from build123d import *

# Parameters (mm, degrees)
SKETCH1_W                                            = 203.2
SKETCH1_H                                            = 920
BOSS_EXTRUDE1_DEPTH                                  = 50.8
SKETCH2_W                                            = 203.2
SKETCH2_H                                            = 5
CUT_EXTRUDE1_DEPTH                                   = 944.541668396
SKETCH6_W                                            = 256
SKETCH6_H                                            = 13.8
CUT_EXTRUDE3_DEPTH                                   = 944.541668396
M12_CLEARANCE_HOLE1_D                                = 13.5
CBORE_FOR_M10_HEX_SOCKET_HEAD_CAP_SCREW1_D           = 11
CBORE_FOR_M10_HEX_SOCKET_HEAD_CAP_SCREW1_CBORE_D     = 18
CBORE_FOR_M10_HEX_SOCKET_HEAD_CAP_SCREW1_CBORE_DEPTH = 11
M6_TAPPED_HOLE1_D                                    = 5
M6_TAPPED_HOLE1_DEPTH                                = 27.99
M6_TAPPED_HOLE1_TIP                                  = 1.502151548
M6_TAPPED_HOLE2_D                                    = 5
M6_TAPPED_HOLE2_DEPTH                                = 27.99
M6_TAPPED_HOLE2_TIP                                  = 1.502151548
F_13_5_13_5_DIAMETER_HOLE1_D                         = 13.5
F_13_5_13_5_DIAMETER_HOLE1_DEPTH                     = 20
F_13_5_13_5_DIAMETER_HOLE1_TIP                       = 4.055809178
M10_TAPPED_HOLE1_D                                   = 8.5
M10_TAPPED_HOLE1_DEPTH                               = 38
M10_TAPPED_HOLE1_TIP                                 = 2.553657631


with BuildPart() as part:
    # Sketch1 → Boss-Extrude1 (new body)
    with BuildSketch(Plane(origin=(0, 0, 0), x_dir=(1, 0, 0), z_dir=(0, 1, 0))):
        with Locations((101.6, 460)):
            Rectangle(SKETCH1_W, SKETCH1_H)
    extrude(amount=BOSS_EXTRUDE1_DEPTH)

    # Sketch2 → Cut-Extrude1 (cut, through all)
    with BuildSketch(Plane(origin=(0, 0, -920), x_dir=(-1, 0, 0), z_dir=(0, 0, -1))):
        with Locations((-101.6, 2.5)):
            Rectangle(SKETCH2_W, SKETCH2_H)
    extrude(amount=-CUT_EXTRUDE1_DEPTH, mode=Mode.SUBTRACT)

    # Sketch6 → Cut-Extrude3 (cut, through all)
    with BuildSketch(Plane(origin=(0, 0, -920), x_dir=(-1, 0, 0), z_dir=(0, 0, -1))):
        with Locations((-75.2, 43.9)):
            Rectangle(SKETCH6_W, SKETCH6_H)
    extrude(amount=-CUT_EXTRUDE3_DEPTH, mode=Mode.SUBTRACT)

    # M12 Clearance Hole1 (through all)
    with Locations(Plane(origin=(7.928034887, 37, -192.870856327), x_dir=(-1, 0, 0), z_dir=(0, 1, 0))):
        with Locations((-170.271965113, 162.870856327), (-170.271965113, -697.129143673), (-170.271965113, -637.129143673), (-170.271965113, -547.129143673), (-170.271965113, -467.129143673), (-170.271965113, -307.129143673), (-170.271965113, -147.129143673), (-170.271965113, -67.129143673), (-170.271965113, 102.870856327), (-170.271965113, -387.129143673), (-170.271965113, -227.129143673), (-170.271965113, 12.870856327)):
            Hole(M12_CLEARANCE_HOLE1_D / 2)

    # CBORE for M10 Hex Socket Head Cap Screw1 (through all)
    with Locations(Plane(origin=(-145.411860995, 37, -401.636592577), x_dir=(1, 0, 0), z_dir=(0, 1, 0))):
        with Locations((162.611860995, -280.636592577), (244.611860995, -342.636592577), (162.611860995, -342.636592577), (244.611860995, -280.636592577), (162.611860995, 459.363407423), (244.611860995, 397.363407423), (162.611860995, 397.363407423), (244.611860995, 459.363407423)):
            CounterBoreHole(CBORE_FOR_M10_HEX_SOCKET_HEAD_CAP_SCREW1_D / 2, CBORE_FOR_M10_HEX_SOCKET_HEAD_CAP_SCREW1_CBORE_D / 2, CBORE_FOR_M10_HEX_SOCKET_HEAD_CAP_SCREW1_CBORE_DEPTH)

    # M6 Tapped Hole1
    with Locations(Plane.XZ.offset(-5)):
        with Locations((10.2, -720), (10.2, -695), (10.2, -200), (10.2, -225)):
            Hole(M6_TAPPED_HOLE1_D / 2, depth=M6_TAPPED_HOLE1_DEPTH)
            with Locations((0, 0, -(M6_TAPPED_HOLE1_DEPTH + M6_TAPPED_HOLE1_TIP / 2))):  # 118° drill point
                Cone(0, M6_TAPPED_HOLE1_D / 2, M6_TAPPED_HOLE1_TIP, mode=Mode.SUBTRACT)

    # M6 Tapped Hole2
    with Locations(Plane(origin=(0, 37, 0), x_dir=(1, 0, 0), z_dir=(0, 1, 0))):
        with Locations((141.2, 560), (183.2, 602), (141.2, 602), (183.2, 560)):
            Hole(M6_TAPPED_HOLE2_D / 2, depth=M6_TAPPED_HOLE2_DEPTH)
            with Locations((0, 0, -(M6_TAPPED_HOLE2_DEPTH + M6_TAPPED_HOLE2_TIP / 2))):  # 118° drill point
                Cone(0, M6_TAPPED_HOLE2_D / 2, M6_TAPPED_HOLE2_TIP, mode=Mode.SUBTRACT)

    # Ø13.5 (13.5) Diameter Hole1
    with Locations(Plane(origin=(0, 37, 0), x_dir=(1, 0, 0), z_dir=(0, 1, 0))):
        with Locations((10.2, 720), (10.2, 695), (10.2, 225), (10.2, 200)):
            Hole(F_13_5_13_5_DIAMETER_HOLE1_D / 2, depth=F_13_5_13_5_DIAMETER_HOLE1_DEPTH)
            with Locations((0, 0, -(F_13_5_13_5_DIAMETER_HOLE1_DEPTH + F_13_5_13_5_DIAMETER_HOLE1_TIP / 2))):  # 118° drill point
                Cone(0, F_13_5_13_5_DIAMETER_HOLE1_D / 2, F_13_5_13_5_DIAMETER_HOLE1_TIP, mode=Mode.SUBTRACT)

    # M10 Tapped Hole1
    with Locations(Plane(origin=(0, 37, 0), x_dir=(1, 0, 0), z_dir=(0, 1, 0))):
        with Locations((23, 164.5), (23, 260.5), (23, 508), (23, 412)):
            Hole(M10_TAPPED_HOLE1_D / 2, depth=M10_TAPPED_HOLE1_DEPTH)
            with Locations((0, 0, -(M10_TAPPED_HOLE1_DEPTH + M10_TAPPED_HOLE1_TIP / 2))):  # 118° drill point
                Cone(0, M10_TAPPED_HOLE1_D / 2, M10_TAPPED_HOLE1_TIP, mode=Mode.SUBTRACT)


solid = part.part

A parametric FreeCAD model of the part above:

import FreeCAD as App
import Part
import Sketcher
Q = App.Units.Quantity


def add_polygon(sketch, points):
    """Adds a closed chain of lines whose ends are joined by coincident constraints."""
    first, n = sketch.GeometryCount, len(points)
    for a, b in zip(points, points[1:] + points[:1]):
        sketch.addGeometry(Part.LineSegment(App.Vector(*a, 0), App.Vector(*b, 0)), False)
    for i in range(n):
        sketch.addConstraint(Sketcher.Constraint("Coincident", first + i, 2, first + (i + 1) % n, 1))

doc = App.newDocument("Part")
body = doc.addObject("PartDesign::Body", "Body")

# Sketch on XZ plane
sketch1 = body.newObject("Sketcher::SketchObject", "Sketch")
sketch1.AttachmentSupport = (doc.getObject("XZ_Plane"), [""])
sketch1.MapMode = "FlatFace"
add_polygon(sketch1, [(0, -920), (0, 0), (203, 0), (203, -920)])  # lines 0-3
sketch1.addConstraint([
    Sketcher.Constraint("Vertical", 0),
    Sketcher.Constraint("Horizontal", 1),
    Sketcher.Constraint("Vertical", 2),
    Sketcher.Constraint("Horizontal", 3),
    Sketcher.Constraint("Coincident", 0, 2, -1, 1),
    Sketcher.Constraint("DistanceY", 0, 1, 0, 2, Q("920 mm")),
    Sketcher.Constraint("DistanceX", 1, 1, 1, 2, Q("203.2 mm")),
])
pad1 = body.newObject("PartDesign::Pad", "Pad")
pad1.Profile = sketch1
pad1.Length = 50.8
pad1.Reversed = True

# Sketch on XY plane
sketch2 = body.newObject("Sketcher::SketchObject", "Sketch001")
sketch2.AttachmentSupport = (doc.getObject("XY_Plane"), [""])
sketch2.MapMode = "FlatFace"
sketch2.AttachmentOffset = App.Placement(App.Vector(0, 0, -920), App.Rotation())
add_polygon(sketch2, [(203, 5), (203, 0), (0, 0), (0, 5)])  # lines 0-3
sketch2.addConstraint([
    Sketcher.Constraint("Vertical", 0),
    Sketcher.Constraint("Horizontal", 1),
    Sketcher.Constraint("Vertical", 2),
    Sketcher.Constraint("Horizontal", 3),
    Sketcher.Constraint("Coincident", 1, 2, -1, 1),
    Sketcher.Constraint("DistanceY", 0, 2, 0, 1, Q("5 mm")),
    Sketcher.Constraint("DistanceX", 1, 2, 1, 1, Q("203.2 mm")),
])
pocket1 = body.newObject("PartDesign::Pocket", "Pocket")
pocket1.Profile = sketch2
pocket1.Type = "ThroughAll"
pocket1.Reversed = True

# Sketch on XY plane
sketch3 = body.newObject("Sketcher::SketchObject", "Sketch002")
sketch3.AttachmentSupport = (doc.getObject("XY_Plane"), [""])
sketch3.MapMode = "FlatFace"
sketch3.AttachmentOffset = App.Placement(App.Vector(0, 0, -920), App.Rotation())
add_polygon(sketch3, [(203, 51), (203, 37), (-53, 37), (-53, 51)])  # lines 0-3
sketch3.addConstraint([
    Sketcher.Constraint("Vertical", 0),
    Sketcher.Constraint("Horizontal", 1),
    Sketcher.Constraint("Vertical", 2),
    Sketcher.Constraint("Horizontal", 3),
    Sketcher.Constraint("DistanceX", 1, 2, 1, 1, Q("256 mm")),
    Sketcher.Constraint("DistanceY", 0, 2, 0, 1, Q("13.8 mm")),
    Sketcher.Constraint("DistanceY", -1, 1, 0, 2, Q("37 mm")),
    Sketcher.Constraint("DistanceX", -1, 1, 0, 2, Q("203.2 mm")),
])
pocket2 = body.newObject("PartDesign::Pocket", "Pocket001")
pocket2.Profile = sketch3
pocket2.Type = "ThroughAll"
pocket2.Reversed = True

# Sketch on XZ plane
sketch4 = body.newObject("Sketcher::SketchObject", "Sketch003")
sketch4.AttachmentSupport = (doc.getObject("XZ_Plane"), [""])
sketch4.MapMode = "FlatFace"
sketch4.AttachmentOffset = App.Placement(App.Vector(0, 0, -37), App.Rotation())
sketch4.addGeometry([
    Part.Circle(App.Vector(178, -30, 0), App.Vector(0, 0, 1), 7),  # 0
    Part.Circle(App.Vector(178, -890, 0), App.Vector(0, 0, 1), 7),  # 1
    Part.Circle(App.Vector(178, -830, 0), App.Vector(0, 0, 1), 7),  # 2
    Part.Circle(App.Vector(178, -740, 0), App.Vector(0, 0, 1), 7),  # 3
    Part.Circle(App.Vector(178, -660, 0), App.Vector(0, 0, 1), 7),  # 4
    Part.Circle(App.Vector(178, -500, 0), App.Vector(0, 0, 1), 7),  # 5
    Part.Circle(App.Vector(178, -340, 0), App.Vector(0, 0, 1), 7),  # 6
    Part.Circle(App.Vector(178, -260, 0), App.Vector(0, 0, 1), 7),  # 7
    Part.Circle(App.Vector(178, -90, 0), App.Vector(0, 0, 1), 7),  # 8
    Part.Circle(App.Vector(178, -580, 0), App.Vector(0, 0, 1), 7),  # 9
    Part.Circle(App.Vector(178, -420, 0), App.Vector(0, 0, 1), 7),  # 10
    Part.Circle(App.Vector(178, -180, 0), App.Vector(0, 0, 1), 7),  # 11
], False)
sketch4.addConstraint([
    Sketcher.Constraint("Equal", 0, 1),
    Sketcher.Constraint("Equal", 1, 2),
    Sketcher.Constraint("Equal", 2, 3),
    Sketcher.Constraint("Equal", 3, 4),
    Sketcher.Constraint("Equal", 4, 5),
    Sketcher.Constraint("Equal", 5, 6),
    Sketcher.Constraint("Equal", 6, 7),
    Sketcher.Constraint("Equal", 7, 8),
    Sketcher.Constraint("Equal", 8, 9),
    Sketcher.Constraint("Equal", 9, 10),
    Sketcher.Constraint("Equal", 10, 11),
    Sketcher.Constraint("Vertical", 0, 3, 1, 3),
    Sketcher.Constraint("Vertical", 1, 3, 2, 3),
    Sketcher.Constraint("Vertical", 2, 3, 3, 3),
    Sketcher.Constraint("Vertical", 3, 3, 4, 3),
    Sketcher.Constraint("Vertical", 4, 3, 5, 3),
    Sketcher.Constraint("Vertical", 5, 3, 6, 3),
    Sketcher.Constraint("Vertical", 6, 3, 7, 3),
    Sketcher.Constraint("Vertical", 7, 3, 8, 3),
    Sketcher.Constraint("Vertical", 8, 3, 9, 3),
    Sketcher.Constraint("Vertical", 9, 3, 10, 3),
    Sketcher.Constraint("Vertical", 10, 3, 11, 3),
    Sketcher.Constraint("Diameter", 0, Q("13.5 mm")),
    Sketcher.Constraint("DistanceY", 0, 3, -1, 1, Q("30 mm")),
    Sketcher.Constraint("DistanceY", 1, 3, -1, 1, Q("890 mm")),
    Sketcher.Constraint("DistanceY", 2, 3, -1, 1, Q("830 mm")),
    Sketcher.Constraint("DistanceY", 3, 3, -1, 1, Q("740 mm")),
    Sketcher.Constraint("DistanceY", 4, 3, -1, 1, Q("660 mm")),
    Sketcher.Constraint("DistanceY", 5, 3, -1, 1, Q("500 mm")),
    Sketcher.Constraint("DistanceY", 6, 3, -1, 1, Q("340 mm")),
    Sketcher.Constraint("DistanceY", 7, 3, -1, 1, Q("260 mm")),
    Sketcher.Constraint("DistanceY", 8, 3, -1, 1, Q("90 mm")),
    Sketcher.Constraint("DistanceY", 9, 3, -1, 1, Q("580 mm")),
    Sketcher.Constraint("DistanceY", 10, 3, -1, 1, Q("420 mm")),
    Sketcher.Constraint("DistanceY", 11, 3, -1, 1, Q("180 mm")),
    Sketcher.Constraint("DistanceX", -1, 1, 0, 3, Q("178.2 mm")),
])
doc.recompute()
hole = body.newObject("PartDesign::Hole", "Hole")
hole.Profile = sketch4
hole.ThreadType = "None"
hole.Diameter = 13.5
hole.DepthType = "ThroughAll"
hole.Reversed = True

# Sketch on XZ plane
sketch5 = body.newObject("Sketcher::SketchObject", "Sketch004")
sketch5.AttachmentSupport = (doc.getObject("XZ_Plane"), [""])
sketch5.MapMode = "FlatFace"
sketch5.AttachmentOffset = App.Placement(App.Vector(0, 0, -37), App.Rotation())
sketch5.addGeometry([
    Part.Circle(App.Vector(17, -121, 0), App.Vector(0, 0, 1), 6),  # 0
    Part.Circle(App.Vector(99, -59, 0), App.Vector(0, 0, 1), 6),  # 1
    Part.Circle(App.Vector(17, -59, 0), App.Vector(0, 0, 1), 6),  # 2
    Part.Circle(App.Vector(99, -121, 0), App.Vector(0, 0, 1), 6),  # 3
    Part.Circle(App.Vector(17, -861, 0), App.Vector(0, 0, 1), 6),  # 4
    Part.Circle(App.Vector(99, -799, 0), App.Vector(0, 0, 1), 6),  # 5
    Part.Circle(App.Vector(17, -799, 0), App.Vector(0, 0, 1), 6),  # 6
    Part.Circle(App.Vector(99, -861, 0), App.Vector(0, 0, 1), 6),  # 7
], False)
sketch5.addConstraint([
    Sketcher.Constraint("Equal", 0, 1),
    Sketcher.Constraint("Equal", 1, 2),
    Sketcher.Constraint("Equal", 2, 3),
    Sketcher.Constraint("Equal", 3, 4),
    Sketcher.Constraint("Equal", 4, 5),
    Sketcher.Constraint("Equal", 5, 6),
    Sketcher.Constraint("Equal", 6, 7),
    Sketcher.Constraint("Horizontal", 1, 3, 2, 3),
    Sketcher.Constraint("Horizontal", 0, 3, 3, 3),
    Sketcher.Constraint("Horizontal", 5, 3, 6, 3),
    Sketcher.Constraint("Horizontal", 4, 3, 7, 3),
    Sketcher.Constraint("Vertical", 0, 3, 2, 3),
    Sketcher.Constraint("Vertical", 1, 3, 3, 3),
    Sketcher.Constraint("Vertical", 2, 3, 4, 3),
    Sketcher.Constraint("Vertical", 3, 3, 5, 3),
    Sketcher.Constraint("Vertical", 4, 3, 6, 3),
    Sketcher.Constraint("Vertical", 5, 3, 7, 3),
    Sketcher.Constraint("Diameter", 0, Q("11 mm")),
    Sketcher.Constraint("DistanceY", 0, 3, -1, 1, Q("121 mm")),
    Sketcher.Constraint("DistanceY", 1, 3, -1, 1, Q("59 mm")),
    Sketcher.Constraint("DistanceY", 4, 3, -1, 1, Q("861 mm")),
    Sketcher.Constraint("DistanceY", 5, 3, -1, 1, Q("799 mm")),
    Sketcher.Constraint("DistanceX", 0, 3, 1, 3, Q("82 mm")),
    Sketcher.Constraint("DistanceX", -1, 1, 0, 3, Q("17.2 mm")),
])
doc.recompute()
hole2 = body.newObject("PartDesign::Hole", "Hole001")
hole2.Profile = sketch5
hole2.ThreadType = "None"
hole2.Diameter = 11
hole2.DepthType = "ThroughAll"
hole2.HoleCutType = "Counterbore"
hole2.HoleCutDiameter = 18
hole2.HoleCutDepth = 11
hole2.Reversed = True

# Sketch on XZ plane
sketch6 = body.newObject("Sketcher::SketchObject", "Sketch005")
sketch6.AttachmentSupport = (doc.getObject("XZ_Plane"), [""])
sketch6.MapMode = "FlatFace"
sketch6.AttachmentOffset = App.Placement(App.Vector(0, 0, -5), App.Rotation())
sketch6.addGeometry([
    Part.Circle(App.Vector(10.2, -720, 0), App.Vector(0, 0, 1), 2.5),
    Part.Circle(App.Vector(10.2, -695, 0), App.Vector(0, 0, 1), 2.5),
    Part.Circle(App.Vector(10.2, -200, 0), App.Vector(0, 0, 1), 2.5),
    Part.Circle(App.Vector(10.2, -225, 0), App.Vector(0, 0, 1), 2.5),
], False)
sketch6.addConstraint([
    Sketcher.Constraint("Equal", 0, 1),
    Sketcher.Constraint("Equal", 1, 2),
    Sketcher.Constraint("Equal", 2, 3),
    Sketcher.Constraint("Vertical", 0, 3, 1, 3),
    Sketcher.Constraint("Vertical", 1, 3, 2, 3),
    Sketcher.Constraint("Vertical", 2, 3, 3, 3),
    Sketcher.Constraint("Diameter", 0, Q("5 mm")),
    Sketcher.Constraint("DistanceY", 0, 3, -1, 1, Q("720 mm")),
    Sketcher.Constraint("DistanceY", 1, 3, -1, 1, Q("695 mm")),
    Sketcher.Constraint("DistanceY", 2, 3, -1, 1, Q("200 mm")),
    Sketcher.Constraint("DistanceY", 3, 3, -1, 1, Q("225 mm")),
    Sketcher.Constraint("DistanceX", -1, 1, 0, 3, Q("10.2 mm")),
])
doc.recompute()
hole3 = body.newObject("PartDesign::Hole", "Hole002")
hole3.Profile = sketch6
hole3.ThreadType = "None"
hole3.Diameter = 5
hole3.DepthType = "Dimension"
hole3.Depth = 27.99
hole3.DrillPoint = "Angled"
hole3.DrillPointAngle = 118

# Sketch on XZ plane
sketch7 = body.newObject("Sketcher::SketchObject", "Sketch006")
sketch7.AttachmentSupport = (doc.getObject("XZ_Plane"), [""])
sketch7.MapMode = "FlatFace"
sketch7.AttachmentOffset = App.Placement(App.Vector(0, 0, -37), App.Rotation())
sketch7.addGeometry([
    Part.Circle(App.Vector(141.2, -560, 0), App.Vector(0, 0, 1), 2.5),
    Part.Circle(App.Vector(183.2, -602, 0), App.Vector(0, 0, 1), 2.5),
    Part.Circle(App.Vector(141.2, -602, 0), App.Vector(0, 0, 1), 2.5),
    Part.Circle(App.Vector(183.2, -560, 0), App.Vector(0, 0, 1), 2.5),
], False)
sketch7.addConstraint([
    Sketcher.Constraint("Equal", 0, 1),
    Sketcher.Constraint("Equal", 1, 2),
    Sketcher.Constraint("Equal", 2, 3),
    Sketcher.Constraint("Horizontal", 1, 3, 2, 3),
    Sketcher.Constraint("Horizontal", 0, 3, 3, 3),
    Sketcher.Constraint("Vertical", 0, 3, 2, 3),
    Sketcher.Constraint("Vertical", 1, 3, 3, 3),
    Sketcher.Constraint("Diameter", 0, Q("5 mm")),
    Sketcher.Constraint("DistanceY", 0, 3, -1, 1, Q("560 mm")),
    Sketcher.Constraint("DistanceY", 1, 3, -1, 1, Q("602 mm")),
    Sketcher.Constraint("DistanceX", 0, 3, 1, 3, Q("42 mm")),
    Sketcher.Constraint("DistanceX", -1, 1, 0, 3, Q("141.2 mm")),
])
doc.recompute()
hole4 = body.newObject("PartDesign::Hole", "Hole003")
hole4.Profile = sketch7
hole4.ThreadType = "None"
hole4.Diameter = 5
hole4.DepthType = "Dimension"
hole4.Depth = 27.99
hole4.DrillPoint = "Angled"
hole4.DrillPointAngle = 118
hole4.Reversed = True

# Sketch on XZ plane
sketch8 = body.newObject("Sketcher::SketchObject", "Sketch007")
sketch8.AttachmentSupport = (doc.getObject("XZ_Plane"), [""])
sketch8.MapMode = "FlatFace"
sketch8.AttachmentOffset = App.Placement(App.Vector(0, 0, -37), App.Rotation())
sketch8.addGeometry([
    Part.Circle(App.Vector(10, -720, 0), App.Vector(0, 0, 1), 7),
    Part.Circle(App.Vector(10, -695, 0), App.Vector(0, 0, 1), 7),
    Part.Circle(App.Vector(10, -225, 0), App.Vector(0, 0, 1), 7),
    Part.Circle(App.Vector(10, -200, 0), App.Vector(0, 0, 1), 7),
], False)
sketch8.addConstraint([
    Sketcher.Constraint("Equal", 0, 1),
    Sketcher.Constraint("Equal", 1, 2),
    Sketcher.Constraint("Equal", 2, 3),
    Sketcher.Constraint("Vertical", 0, 3, 1, 3),
    Sketcher.Constraint("Vertical", 1, 3, 2, 3),
    Sketcher.Constraint("Vertical", 2, 3, 3, 3),
    Sketcher.Constraint("Diameter", 0, Q("13.5 mm")),
    Sketcher.Constraint("DistanceY", 0, 3, -1, 1, Q("720 mm")),
    Sketcher.Constraint("DistanceY", 1, 3, -1, 1, Q("695 mm")),
    Sketcher.Constraint("DistanceY", 2, 3, -1, 1, Q("225 mm")),
    Sketcher.Constraint("DistanceY", 3, 3, -1, 1, Q("200 mm")),
    Sketcher.Constraint("DistanceX", -1, 1, 0, 3, Q("10.2 mm")),
])
doc.recompute()
hole5 = body.newObject("PartDesign::Hole", "Hole004")
hole5.Profile = sketch8
hole5.ThreadType = "None"
hole5.Diameter = 13.5
hole5.DepthType = "Dimension"
hole5.Depth = 20
hole5.DrillPoint = "Angled"
hole5.DrillPointAngle = 118
hole5.Reversed = True

# Sketch on XZ plane
sketch9 = body.newObject("Sketcher::SketchObject", "Sketch008")
sketch9.AttachmentSupport = (doc.getObject("XZ_Plane"), [""])
sketch9.MapMode = "FlatFace"
sketch9.AttachmentOffset = App.Placement(App.Vector(0, 0, -37), App.Rotation())
sketch9.addGeometry([
    Part.Circle(App.Vector(23, -164.5, 0), App.Vector(0, 0, 1), 4.2),
    Part.Circle(App.Vector(23, -260.5, 0), App.Vector(0, 0, 1), 4.2),
    Part.Circle(App.Vector(23, -508, 0), App.Vector(0, 0, 1), 4.2),
    Part.Circle(App.Vector(23, -412, 0), App.Vector(0, 0, 1), 4.2),
], False)
sketch9.addConstraint([
    Sketcher.Constraint("Equal", 0, 1),
    Sketcher.Constraint("Equal", 1, 2),
    Sketcher.Constraint("Equal", 2, 3),
    Sketcher.Constraint("Vertical", 0, 3, 1, 3),
    Sketcher.Constraint("Vertical", 1, 3, 2, 3),
    Sketcher.Constraint("Vertical", 2, 3, 3, 3),
    Sketcher.Constraint("Diameter", 0, Q("8.5 mm")),
    Sketcher.Constraint("DistanceX", -1, 1, 0, 3, Q("23 mm")),
    Sketcher.Constraint("DistanceY", 2, 3, -1, 1, Q("508 mm")),
    Sketcher.Constraint("DistanceY", 3, 3, -1, 1, Q("412 mm")),
    Sketcher.Constraint("DistanceY", 1, 3, 0, 3, Q("96 mm")),
    Sketcher.Constraint("DistanceY", 0, 3, -1, 1, Q("164.5 mm")),
])
doc.recompute()
hole6 = body.newObject("PartDesign::Hole", "Hole005")
hole6.Profile = sketch9
hole6.ThreadType = "None"
hole6.Diameter = 8.5
hole6.DepthType = "Dimension"
hole6.Depth = 38
hole6.DrillPoint = "Angled"
hole6.DrillPointAngle = 118
hole6.Reversed = True

doc.recompute()
